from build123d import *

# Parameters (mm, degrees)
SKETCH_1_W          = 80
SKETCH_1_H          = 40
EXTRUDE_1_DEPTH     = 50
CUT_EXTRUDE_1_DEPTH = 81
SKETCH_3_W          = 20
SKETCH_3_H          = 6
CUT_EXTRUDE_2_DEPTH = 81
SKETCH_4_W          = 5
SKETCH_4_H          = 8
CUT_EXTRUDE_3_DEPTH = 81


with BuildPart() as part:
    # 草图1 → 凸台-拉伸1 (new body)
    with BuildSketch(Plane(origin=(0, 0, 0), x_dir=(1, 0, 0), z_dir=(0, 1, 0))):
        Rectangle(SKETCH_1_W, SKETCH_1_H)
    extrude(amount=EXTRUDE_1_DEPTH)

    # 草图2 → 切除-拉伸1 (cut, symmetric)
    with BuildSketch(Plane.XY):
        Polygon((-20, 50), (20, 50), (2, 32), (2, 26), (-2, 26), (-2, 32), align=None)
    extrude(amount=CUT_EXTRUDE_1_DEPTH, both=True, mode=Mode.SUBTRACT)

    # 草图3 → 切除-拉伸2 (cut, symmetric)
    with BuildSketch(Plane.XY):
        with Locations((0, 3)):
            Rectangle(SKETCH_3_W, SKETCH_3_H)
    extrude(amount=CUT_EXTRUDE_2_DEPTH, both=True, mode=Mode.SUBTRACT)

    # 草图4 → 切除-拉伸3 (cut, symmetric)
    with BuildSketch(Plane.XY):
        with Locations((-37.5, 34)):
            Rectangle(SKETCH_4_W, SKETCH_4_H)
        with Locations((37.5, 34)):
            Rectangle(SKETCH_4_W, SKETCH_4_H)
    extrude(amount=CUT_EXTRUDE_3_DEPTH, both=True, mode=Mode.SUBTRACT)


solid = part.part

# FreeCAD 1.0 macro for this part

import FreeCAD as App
import Part
import Sketcher
from FreeCAD import Vector

doc = App.newDocument("Part")
body = doc.addObject("PartDesign::Body", "Body")

# Sketch on XZ plane
sketch1 = body.newObject("Sketcher::SketchObject", "Sketch")
sketch1.AttachmentSupport = (doc.getObject("XZ_Plane"), [""])
sketch1.MapMode = "FlatFace"
sketch1.addGeometry(Part.LineSegment(Vector(-40, -20, 0), Vector(-40, 20, 0)), False)
sketch1.addGeometry(Part.LineSegment(Vector(-40, 20, 0), Vector(40, 20, 0)), False)
sketch1.addGeometry(Part.LineSegment(Vector(40, 20, 0), Vector(40, -20, 0)), False)
sketch1.addGeometry(Part.LineSegment(Vector(40, -20, 0), Vector(-40, -20, 0)), False)
sketch1.addConstraint(Sketcher.Constraint("Coincident", 0, 2, 1, 1))
sketch1.addConstraint(Sketcher.Constraint("Coincident", 1, 2, 2, 1))
sketch1.addConstraint(Sketcher.Constraint("Coincident", 2, 2, 3, 1))
sketch1.addConstraint(Sketcher.Constraint("Coincident", 3, 2, 0, 1))
sketch1.addConstraint(Sketcher.Constraint("Vertical", 0))
sketch1.addConstraint(Sketcher.Constraint("Horizontal", 1))
sketch1.addConstraint(Sketcher.Constraint("Vertical", 2))
sketch1.addConstraint(Sketcher.Constraint("Horizontal", 3))
sketch1.addConstraint(Sketcher.Constraint("Symmetric", 0, 2, 2, 2, -1, 1))
sketch1.addConstraint(Sketcher.Constraint("DistanceX", 1, 1, 1, 2, 80.0))
sketch1.addConstraint(Sketcher.Constraint("DistanceY", 0, 1, 0, 2, 40.0))
pad1 = body.newObject("PartDesign::Pad", "Pad")
pad1.Profile = sketch1
pad1.Length = 50
pad1.Reversed = True

# Sketch on XY plane
sketch2 = body.newObject("Sketcher::SketchObject", "Sketch001")
sketch2.AttachmentSupport = (doc.getObject("XY_Plane"), [""])
sketch2.MapMode = "FlatFace"
sketch2.addGeometry(Part.LineSegment(Vector(20, 50, 0), Vector(-20, 50, 0)), False)
sketch2.addGeometry(Part.LineSegment(Vector(-20, 50, 0), Vector(-2, 32, 0)), False)
sketch2.addGeometry(Part.LineSegment(Vector(-2, 32, 0), Vector(-2, 26, 0)), False)
sketch2.addGeometry(Part.LineSegment(Vector(-2, 26, 0), Vector(2, 26, 0)), False)
sketch2.addGeometry(Part.LineSegment(Vector(2, 26, 0), Vector(2, 32, 0)), False)
sketch2.addGeometry(Part.LineSegment(Vector(2, 32, 0), Vector(20, 50, 0)), False)
sketch2.addConstraint(Sketcher.Constraint("Coincident", 0, 2, 1, 1))
sketch2.addConstraint(Sketcher.Constraint("Coincident", 1, 2, 2, 1))
sketch2.addConstraint(Sketcher.Constraint("Coincident", 2, 2, 3, 1))
sketch2.addConstraint(Sketcher.Constraint("Coincident", 3, 2, 4, 1))
sketch2.addConstraint(Sketcher.Constraint("Coincident", 4, 2, 5, 1))
sketch2.addConstraint(Sketcher.Constraint("Coincident", 5, 2, 0, 1))
sketch2.addConstraint(Sketcher.Constraint("Horizontal", 0))
sketch2.addConstraint(Sketcher.Constraint("Vertical", 2))
sketch2.addConstraint(Sketcher.Constraint("Horizontal", 3))
sketch2.addConstraint(Sketcher.Constraint("Vertical", 4))
sketch2.addConstraint(Sketcher.Constraint("Symmetric", 1, 2, 4, 2, -2))
sketch2.addConstraint(Sketcher.Constraint("Perpendicular", 1, 5))
sketch2.addConstraint(Sketcher.Constraint("Equal", 1, 5))
sketch2.addConstraint(Sketcher.Constraint("DistanceX", 0, 2, 0, 1, 40.0))
sketch2.addConstraint(Sketcher.Constraint("DistanceX", 3, 1, 3, 2, 4.0))
sketch2.addConstraint(Sketcher.Constraint("DistanceY", 2, 2, 2, 1, 6.0))
sketch2.addConstraint(Sketcher.Constraint("DistanceY", -1, 1, 0, 2, 50.0))
pocket1 = body.newObject("PartDesign::Pocket", "Pocket")
pocket1.Profile = sketch2
pocket1.Length = 162
pocket1.Midplane = True

# Sketch on XY plane
sketch3 = body.newObject("Sketcher::SketchObject", "Sketch002")
sketch3.AttachmentSupport = (doc.getObject("XY_Plane"), [""])
sketch3.MapMode = "FlatFace"
sketch3.addGeometry(Part.LineSegment(Vector(-10, 6, 0), Vector(-10, 0, 0)), False)
sketch3.addGeometry(Part.LineSegment(Vector(-10, 0, 0), Vector(10, 0, 0)), False)
sketch3.addGeometry(Part.LineSegment(Vector(10, 0, 0), Vector(10, 6, 0)), False)
sketch3.addGeometry(Part.LineSegment(Vector(10, 6, 0), Vector(-10, 6, 0)), False)
sketch3.addConstraint(Sketcher.Constraint("Coincident", 0, 2, 1, 1))
sketch3.addConstraint(Sketcher.Constraint("Coincident", 1, 2, 2, 1))
sketch3.addConstraint(Sketcher.Constraint("Coincident", 2, 2, 3, 1))
sketch3.addConstraint(Sketcher.Constraint("Coincident", 3, 2, 0, 1))
sketch3.addConstraint(Sketcher.Constraint("Vertical", 0))
sketch3.addConstraint(Sketcher.Constraint("Horizontal", 1))
sketch3.addConstraint(Sketcher.Constraint("Vertical", 2))
sketch3.addConstraint(Sketcher.Constraint("Horizontal", 3))
sketch3.addConstraint(Sketcher.Constraint("Symmetric", 0, 2, 1, 2, -1, 1))
sketch3.addConstraint(Sketcher.Constraint("DistanceX", 1, 1, 1, 2, 20.0))
sketch3.addConstraint(Sketcher.Constraint("DistanceY", 0, 2, 0, 1, 6.0))
pocket2 = body.newObject("PartDesign::Pocket", "Pocket001")
pocket2.Profile = sketch3
pocket2.Length = 162
pocket2.Midplane = True

# Sketch on XY plane
sketch4 = body.newObject("Sketcher::SketchObject", "Sketch003")
sketch4.AttachmentSupport = (doc.getObject("XY_Plane"), [""])
sketch4.MapMode = "FlatFace"
sketch4.addGeometry(Part.LineSegment(Vector(-40, 38, 0), Vector(-40, 30, 0)), False)
sketch4.addGeometry(Part.LineSegment(Vector(-40, 30, 0), Vector(-35, 30, 0)), False)
sketch4.addGeometry(Part.LineSegment(Vector(-35, 30, 0), Vector(-35, 38, 0)), False)
sketch4.addGeometry(Part.LineSegment(Vector(-35, 38, 0), Vector(-40, 38, 0)), False)
sketch4.addGeometry(Part.LineSegment(Vector(35, 38, 0), Vector(35, 30, 0)), False)
sketch4.addGeometry(Part.LineSegment(Vector(35, 30, 0), Vector(40, 30, 0)), False)
sketch4.addGeometry(Part.LineSegment(Vector(40, 30, 0), Vector(40, 38, 0)), False)
sketch4.addGeometry(Part.LineSegment(Vector(40, 38, 0), Vector(35, 38, 0)), False)
sketch4.addConstraint(Sketcher.Constraint("Coincident", 0, 2, 1, 1))
sketch4.addConstraint(Sketcher.Constraint("Coincident", 1, 2, 2, 1))
sketch4.addConstraint(Sketcher.Constraint("Coincident", 2, 2, 3, 1))
sketch4.addConstraint(Sketcher.Constraint("Coincident", 3, 2, 0, 1))
sketch4.addConstraint(Sketcher.Constraint("Coincident", 4, 2, 5, 1))
sketch4.addConstraint(Sketcher.Constraint("Coincident", 5, 2, 6, 1))
sketch4.addConstraint(Sketcher.Constraint("Coincident", 6, 2, 7, 1))
sketch4.addConstraint(Sketcher.Constraint("Coincident", 7, 2, 4, 1))
sketch4.addConstraint(Sketcher.Constraint("Vertical", 0))
sketch4.addConstraint(Sketcher.Constraint("Horizontal", 1))
sketch4.addConstraint(Sketcher.Constraint("Vertical", 2))
sketch4.addConstraint(Sketcher.Constraint("Horizontal", 3))
sketch4.addConstraint(Sketcher.Constraint("Vertical", 4))
sketch4.addConstraint(Sketcher.Constraint("Horizontal", 5))
sketch4.addConstraint(Sketcher.Constraint("Vertical", 6))
sketch4.addConstraint(Sketcher.Constraint("Horizontal", 7))
sketch4.addConstraint(Sketcher.Constraint("Symmetric", 1, 2, 4, 2, -2))
sketch4.addConstraint(Sketcher.Constraint("Symmetric", 3, 2, 6, 2, -2))
sketch4.addConstraint(Sketcher.Constraint("DistanceX", 1, 1, 1, 2, 5.0))
sketch4.addConstraint(Sketcher.Constraint("DistanceY", 0, 2, 0, 1, 8.0))
sketch4.addConstraint(Sketcher.Constraint("DistanceX", 0, 2, -1, 1, 40.0))
sketch4.addConstraint(Sketcher.Constraint("DistanceY", -1, 1, 0, 2, 30.0))
pocket3 = body.newObject("PartDesign::Pocket", "Pocket002")
pocket3.Profile = sketch4
pocket3.Length = 162
pocket3.Midplane = True

doc.recompute()
